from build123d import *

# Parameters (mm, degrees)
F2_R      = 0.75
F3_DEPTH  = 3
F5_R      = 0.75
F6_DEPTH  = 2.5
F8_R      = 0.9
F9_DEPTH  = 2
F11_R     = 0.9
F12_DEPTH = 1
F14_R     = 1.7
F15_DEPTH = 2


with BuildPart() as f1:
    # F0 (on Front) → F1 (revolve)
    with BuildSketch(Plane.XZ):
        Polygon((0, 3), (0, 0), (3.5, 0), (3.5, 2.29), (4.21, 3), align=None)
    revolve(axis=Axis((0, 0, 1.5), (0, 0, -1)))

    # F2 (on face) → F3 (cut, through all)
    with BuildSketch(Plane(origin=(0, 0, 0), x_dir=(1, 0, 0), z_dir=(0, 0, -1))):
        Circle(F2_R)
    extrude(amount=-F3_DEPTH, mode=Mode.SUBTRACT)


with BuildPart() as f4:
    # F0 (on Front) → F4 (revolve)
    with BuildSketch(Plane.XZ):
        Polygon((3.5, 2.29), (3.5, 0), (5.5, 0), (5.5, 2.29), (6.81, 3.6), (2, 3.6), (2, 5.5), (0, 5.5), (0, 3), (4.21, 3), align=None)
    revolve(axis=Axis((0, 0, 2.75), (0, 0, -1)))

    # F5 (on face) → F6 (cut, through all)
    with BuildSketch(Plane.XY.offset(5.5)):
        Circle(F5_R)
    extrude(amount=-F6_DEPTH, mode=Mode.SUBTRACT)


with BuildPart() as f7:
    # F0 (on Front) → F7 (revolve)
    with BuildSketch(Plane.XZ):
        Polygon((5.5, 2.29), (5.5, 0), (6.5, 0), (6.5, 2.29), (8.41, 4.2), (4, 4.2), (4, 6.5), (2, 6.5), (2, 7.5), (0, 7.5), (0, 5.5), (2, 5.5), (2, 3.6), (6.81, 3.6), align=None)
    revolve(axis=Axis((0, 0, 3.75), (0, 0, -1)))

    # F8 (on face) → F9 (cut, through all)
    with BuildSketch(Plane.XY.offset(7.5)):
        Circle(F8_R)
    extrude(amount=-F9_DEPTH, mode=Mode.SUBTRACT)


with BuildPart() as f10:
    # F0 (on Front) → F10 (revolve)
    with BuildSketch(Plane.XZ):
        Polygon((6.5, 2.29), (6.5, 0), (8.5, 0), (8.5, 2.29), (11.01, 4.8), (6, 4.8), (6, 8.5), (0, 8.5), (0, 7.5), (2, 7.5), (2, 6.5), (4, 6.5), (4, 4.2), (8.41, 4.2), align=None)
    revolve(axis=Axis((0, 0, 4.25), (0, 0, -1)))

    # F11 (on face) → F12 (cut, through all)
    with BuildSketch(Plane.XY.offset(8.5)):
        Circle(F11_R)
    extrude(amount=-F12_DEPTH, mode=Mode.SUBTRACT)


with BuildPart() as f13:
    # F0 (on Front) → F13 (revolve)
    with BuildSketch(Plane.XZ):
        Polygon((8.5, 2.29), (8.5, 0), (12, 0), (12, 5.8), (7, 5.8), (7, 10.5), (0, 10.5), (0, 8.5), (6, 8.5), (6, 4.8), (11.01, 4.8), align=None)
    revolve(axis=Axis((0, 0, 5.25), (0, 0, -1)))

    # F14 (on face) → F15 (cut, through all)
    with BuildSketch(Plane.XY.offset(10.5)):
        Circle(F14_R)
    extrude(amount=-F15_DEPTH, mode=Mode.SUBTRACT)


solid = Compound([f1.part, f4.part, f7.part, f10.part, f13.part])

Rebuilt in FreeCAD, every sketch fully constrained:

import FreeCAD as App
import Part
import Sketcher
Q = App.Units.Quantity

doc = App.newDocument("Part")
body = doc.addObject("PartDesign::Body", "Body")

# Sketch on XZ plane
sketch1 = doc.addObject("Sketcher::SketchObject", "Sketch")
body.addObject(sketch1)
sketch1.AttachmentSupport = (doc.XZ_Plane, [""])
sketch1.MapMode = "FlatFace"
sketch1.addGeometry(Part.LineSegment(App.Vector(0, 3, 0), App.Vector(0, 0, 0)), False)
sketch1.addGeometry(Part.LineSegment(App.Vector(0, 0, 0), App.Vector(3.5, 0, 0)), False)
sketch1.addGeometry(Part.LineSegment(App.Vector(3.5, 0, 0), App.Vector(3.5, 2.29, 0)), False)
sketch1.addGeometry(Part.LineSegment(App.Vector(3.5, 2.29, 0), App.Vector(4.21, 3, 0)), False)
sketch1.addGeometry(Part.LineSegment(App.Vector(4.21, 3, 0), App.Vector(0, 3, 0)), False)
sketch1.addConstraint(Sketcher.Constraint("Coincident", 0, 2, 1, 1))
sketch1.addConstraint(Sketcher.Constraint("Coincident", 1, 2, 2, 1))
sketch1.addConstraint(Sketcher.Constraint("Coincident", 2, 2, 3, 1))
sketch1.addConstraint(Sketcher.Constraint("Coincident", 3, 2, 4, 1))
sketch1.addConstraint(Sketcher.Constraint("Coincident", 4, 2, 0, 1))
sketch1.addConstraint(Sketcher.Constraint("Vertical", 0))
sketch1.addConstraint(Sketcher.Constraint("Horizontal", 1))
sketch1.addConstraint(Sketcher.Constraint("Vertical", 2))
sketch1.addConstraint(Sketcher.Constraint("Horizontal", 4))
sketch1.addConstraint(Sketcher.Constraint("Coincident", 0, 2, -1, 1))
sketch1.addConstraint(Sketcher.Constraint("DistanceY", 0, 2, 0, 1, Q("3 mm")))
sketch1.addConstraint(Sketcher.Constraint("Angle", 3, Q("45 deg")))
sketch1.addConstraint(Sketcher.Constraint("DistanceX", 1, 1, 1, 2, Q("3.5 mm")))
sketch1.addConstraint(Sketcher.Constraint("DistanceX", 4, 2, 4, 1, Q("4.21 mm")))
revolution = doc.addObject("PartDesign::Revolution", "Revolution")
body.addObject(revolution)
revolution.Profile = sketch1
revolution.ReferenceAxis = (sketch1, ["V_Axis"])
revolution.Angle = 360

# Sketch on XY plane
sketch2 = doc.addObject("Sketcher::SketchObject", "Sketch001")
body.addObject(sketch2)
sketch2.AttachmentSupport = (doc.XY_Plane, [""])
sketch2.MapMode = "FlatFace"
sketch2.addGeometry(Part.Circle(App.Vector(0, 0, 0), App.Vector(0, 0, 1), 0.75), False)
sketch2.addConstraint(Sketcher.Constraint("Coincident", 0, 3, -1, 1))
sketch2.addConstraint(Sketcher.Constraint("Diameter", 0, Q("1.5 mm")))
pocket1 = doc.addObject("PartDesign::Pocket", "Pocket")
body.addObject(pocket1)
pocket1.Profile = sketch2
pocket1.Type = "ThroughAll"
pocket1.Reversed = True
body2 = doc.addObject("PartDesign::Body", "Body001")

# Sketch on XZ plane
sketch3 = doc.addObject("Sketcher::SketchObject", "Sketch002")
body2.addObject(sketch3)
sketch3.AttachmentSupport = (doc.getObject("XZ_Plane001"), [""])
sketch3.MapMode = "FlatFace"
sketch3.addGeometry(Part.LineSegment(App.Vector(3.5, 2.29, 0), App.Vector(3.5, 0, 0)), False)
sketch3.addGeometry(Part.LineSegment(App.Vector(3.5, 0, 0), App.Vector(5.5, 0, 0)), False)
sketch3.addGeometry(Part.LineSegment(App.Vector(5.5, 0, 0), App.Vector(5.5, 2.29, 0)), False)
sketch3.addGeometry(Part.LineSegment(App.Vector(5.5, 2.29, 0), App.Vector(6.81, 3.6, 0)), False)
sketch3.addGeometry(Part.LineSegment(App.Vector(6.81, 3.6, 0), App.Vector(2, 3.6, 0)), False)
sketch3.addGeometry(Part.LineSegment(App.Vector(2, 3.6, 0), App.Vector(2, 5.5, 0)), False)
sketch3.addGeometry(Part.LineSegment(App.Vector(2, 5.5, 0), App.Vector(0, 5.5, 0)), False)
sketch3.addGeometry(Part.LineSegment(App.Vector(0, 5.5, 0), App.Vector(0, 3, 0)), False)
sketch3.addGeometry(Part.LineSegment(App.Vector(0, 3, 0), App.Vector(4.21, 3, 0)), False)
sketch3.addGeometry(Part.LineSegment(App.Vector(4.21, 3, 0), App.Vector(3.5, 2.29, 0)), False)
sketch3.addConstraint(Sketcher.Constraint("Coincident", 0, 2, 1, 1))
sketch3.addConstraint(Sketcher.Constraint("Coincident", 1, 2, 2, 1))
sketch3.addConstraint(Sketcher.Constraint("Coincident", 2, 2, 3, 1))
sketch3.addConstraint(Sketcher.Constraint("Coincident", 3, 2, 4, 1))
sketch3.addConstraint(Sketcher.Constraint("Coincident", 4, 2, 5, 1))
sketch3.addConstraint(Sketcher.Constraint("Coincident", 5, 2, 6, 1))
sketch3.addConstraint(Sketcher.Constraint("Coincident", 6, 2, 7, 1))
sketch3.addConstraint(Sketcher.Constraint("Coincident", 7, 2, 8, 1))
sketch3.addConstraint(Sketcher.Constraint("Coincident", 8, 2, 9, 1))
sketch3.addConstraint(Sketcher.Constraint("Coincident", 9, 2, 0, 1))
sketch3.addConstraint(Sketcher.Constraint("Vertical", 0))
sketch3.addConstraint(Sketcher.Constraint("Horizontal", 1))
sketch3.addConstraint(Sketcher.Constraint("Vertical", 2))
sketch3.addConstraint(Sketcher.Constraint("Horizontal", 4))
sketch3.addConstraint(Sketcher.Constraint("Vertical", 5))
sketch3.addConstraint(Sketcher.Constraint("Horizontal", 6))
sketch3.addConstraint(Sketcher.Constraint("Vertical", 7))
sketch3.addConstraint(Sketcher.Constraint("Horizontal", 8))
sketch3.addConstraint(Sketcher.Constraint("PointOnObject", 0, 2, -1))
sketch3.addConstraint(Sketcher.Constraint("PointOnObject", 6, 2, -2))
sketch3.addConstraint(Sketcher.Constraint("Parallel", 3, 9))
sketch3.addConstraint(Sketcher.Constraint("Horizontal", 2, 2, 9, 2))
sketch3.addConstraint(Sketcher.Constraint("Equal", 1, 6))
sketch3.addConstraint(Sketcher.Constraint("DistanceX", 1, 1, 1, 2, Q("2 mm")))
sketch3.addConstraint(Sketcher.Constraint("Angle", 3, Q("45 deg")))
sketch3.addConstraint(Sketcher.Constraint("DistanceY", 5, 1, 5, 2, Q("1.9 mm")))
sketch3.addConstraint(Sketcher.Constraint("DistanceY", 7, 2, 7, 1, Q("2.5 mm")))
sketch3.addConstraint(Sketcher.Constraint("DistanceY", -1, 1, 7, 2, Q("3 mm")))
sketch3.addConstraint(Sketcher.Constraint("DistanceX", 4, 2, 4, 1, Q("4.81 mm")))
sketch3.addConstraint(Sketcher.Constraint("DistanceY", 0, 2, 0, 1, Q("2.29 mm")))
revolution2 = doc.addObject("PartDesign::Revolution", "Revolution001")
body2.addObject(revolution2)
revolution2.Profile = sketch3
revolution2.ReferenceAxis = (sketch3, ["V_Axis"])
revolution2.Angle = 360

# Sketch on XY plane
sketch4 = doc.addObject("Sketcher::SketchObject", "Sketch003")
body2.addObject(sketch4)
sketch4.AttachmentSupport = (doc.getObject("XY_Plane001"), [""])
sketch4.MapMode = "FlatFace"
sketch4.AttachmentOffset = App.Placement(App.Vector(0, 0, 5.5), App.Rotation())
sketch4.addGeometry(Part.Circle(App.Vector(0, 0, 0), App.Vector(0, 0, 1), 0.75), False)
sketch4.addConstraint(Sketcher.Constraint("Coincident", 0, 3, -1, 1))
sketch4.addConstraint(Sketcher.Constraint("Diameter", 0, Q("1.5 mm")))
pocket2 = doc.addObject("PartDesign::Pocket", "Pocket001")
body2.addObject(pocket2)
pocket2.Profile = sketch4
pocket2.Type = "ThroughAll"
body3 = doc.addObject("PartDesign::Body", "Body002")

# Sketch on XZ plane
sketch5 = doc.addObject("Sketcher::SketchObject", "Sketch004")
body3.addObject(sketch5)
sketch5.AttachmentSupport = (doc.getObject("XZ_Plane002"), [""])
sketch5.MapMode = "FlatFace"
sketch5.addGeometry(Part.LineSegment(App.Vector(5.5, 2.29, 0), App.Vector(5.5, 0, 0)), False)
sketch5.addGeometry(Part.LineSegment(App.Vector(5.5, 0, 0), App.Vector(6.5, 0, 0)), False)
sketch5.addGeometry(Part.LineSegment(App.Vector(6.5, 0, 0), App.Vector(6.5, 2.29, 0)), False)
sketch5.addGeometry(Part.LineSegment(App.Vector(6.5, 2.29, 0), App.Vector(8.41, 4.2, 0)), False)
sketch5.addGeometry(Part.LineSegment(App.Vector(8.41, 4.2, 0), App.Vector(4, 4.2, 0)), False)
sketch5.addGeometry(Part.LineSegment(App.Vector(4, 4.2, 0), App.Vector(4, 6.5, 0)), False)
sketch5.addGeometry(Part.LineSegment(App.Vector(4, 6.5, 0), App.Vector(2, 6.5, 0)), False)
sketch5.addGeometry(Part.LineSegment(App.Vector(2, 6.5, 0), App.Vector(2, 7.5, 0)), False)
sketch5.addGeometry(Part.LineSegment(App.Vector(2, 7.5, 0), App.Vector(0, 7.5, 0)), False)
sketch5.addGeometry(Part.LineSegment(App.Vector(0, 7.5, 0), App.Vector(0, 5.5, 0)), False)
sketch5.addGeometry(Part.LineSegment(App.Vector(0, 5.5, 0), App.Vector(2, 5.5, 0)), False)
sketch5.addGeometry(Part.LineSegment(App.Vector(2, 5.5, 0), App.Vector(2, 3.6, 0)), False)
sketch5.addGeometry(Part.LineSegment(App.Vector(2, 3.6, 0), App.Vector(6.81, 3.6, 0)), False)
sketch5.addGeometry(Part.LineSegment(App.Vector(6.81, 3.6, 0), App.Vector(5.5, 2.29, 0)), False)
sketch5.addConstraint(Sketcher.Constraint("Coincident", 0, 2, 1, 1))
sketch5.addConstraint(Sketcher.Constraint("Coincident", 1, 2, 2, 1))
sketch5.addConstraint(Sketcher.Constraint("Coincident", 2, 2, 3, 1))
sketch5.addConstraint(Sketcher.Constraint("Coincident", 3, 2, 4, 1))
sketch5.addConstraint(Sketcher.Constraint("Coincident", 4, 2, 5, 1))
sketch5.addConstraint(Sketcher.Constraint("Coincident", 5, 2, 6, 1))
sketch5.addConstraint(Sketcher.Constraint("Coincident", 6, 2, 7, 1))
sketch5.addConstraint(Sketcher.Constraint("Coincident", 7, 2, 8, 1))
sketch5.addConstraint(Sketcher.Constraint("Coincident", 8, 2, 9, 1))
sketch5.addConstraint(Sketcher.Constraint("Coincident", 9, 2, 10, 1))
sketch5.addConstraint(Sketcher.Constraint("Coincident", 10, 2, 11, 1))
sketch5.addConstraint(Sketcher.Constraint("Coincident", 11, 2, 12, 1))
sketch5.addConstraint(Sketcher.Constraint("Coincident", 12, 2, 13, 1))
sketch5.addConstraint(Sketcher.Constraint("Coincident", 13, 2, 0, 1))
sketch5.addConstraint(Sketcher.Constraint("Vertical", 0))
sketch5.addConstraint(Sketcher.Constraint("Horizontal", 1))
sketch5.addConstraint(Sketcher.Constraint("Vertical", 2))
sketch5.addConstraint(Sketcher.Constraint("Horizontal", 4))
sketch5.addConstraint(Sketcher.Constraint("Vertical", 5))
sketch5.addConstraint(Sketcher.Constraint("Horizontal", 6))
sketch5.addConstraint(Sketcher.Constraint("Vertical", 7))
sketch5.addConstraint(Sketcher.Constraint("Horizontal", 8))
sketch5.addConstraint(Sketcher.Constraint("Vertical", 9))
sketch5.addConstraint(Sketcher.Constraint("Horizontal", 10))
sketch5.addConstraint(Sketcher.Constraint("Vertical", 11))
sketch5.addConstraint(Sketcher.Constraint("Horizontal", 12))
sketch5.addConstraint(Sketcher.Constraint("PointOnObject", 0, 2, -1))
sketch5.addConstraint(Sketcher.Constraint("PointOnObject", 8, 2, -2))
sketch5.addConstraint(Sketcher.Constraint("Parallel", 3, 13))
sketch5.addConstraint(Sketcher.Constraint("Horizontal", 2, 2, 13, 2))
sketch5.addConstraint(Sketcher.Constraint("Vertical", 7, 2, 10, 2))
sketch5.addConstraint(Sketcher.Constraint("Equal", 6, 8))
sketch5.addConstraint(Sketcher.Constraint("Equal", 1, 7))
sketch5.addConstraint(Sketcher.Constraint("Equal", 10, 9))
sketch5.addConstraint(Sketcher.Constraint("DistanceX", 1, 1, 1, 2, Q("1 mm")))
sketch5.addConstraint(Sketcher.Constraint("DistanceX", 6, 2, 6, 1, Q("2 mm")))
sketch5.addConstraint(Sketcher.Constraint("Angle", 3, Q("45 deg")))
sketch5.addConstraint(Sketcher.Constraint("DistanceY", 5, 1, 5, 2, Q("2.3 mm")))
sketch5.addConstraint(Sketcher.Constraint("DistanceY", 11, 2, 11, 1, Q("1.9 mm")))
sketch5.addConstraint(Sketcher.Constraint("DistanceX", 4, 2, 4, 1, Q("4.41 mm")))
sketch5.addConstraint(Sketcher.Constraint("DistanceY", 0, 2, 0, 1, Q("2.29 mm")))
sketch5.addConstraint(Sketcher.Constraint("DistanceX", -1, 1, 0, 2, Q("5.5 mm")))
revolution3 = doc.addObject("PartDesign::Revolution", "Revolution002")
body3.addObject(revolution3)
revolution3.Profile = sketch5
revolution3.ReferenceAxis = (sketch5, ["V_Axis"])
revolution3.Angle = 360

# Sketch on XY plane
sketch6 = doc.addObject("Sketcher::SketchObject", "Sketch005")
body3.addObject(sketch6)
sketch6.AttachmentSupport = (doc.getObject("XY_Plane002"), [""])
sketch6.MapMode = "FlatFace"
sketch6.AttachmentOffset = App.Placement(App.Vector(0, 0, 7.5), App.Rotation())
sketch6.addGeometry(Part.Circle(App.Vector(0, 0, 0), App.Vector(0, 0, 1), 0.9), False)
sketch6.addConstraint(Sketcher.Constraint("Coincident", 0, 3, -1, 1))
sketch6.addConstraint(Sketcher.Constraint("Diameter", 0, Q("1.8 mm")))
pocket3 = doc.addObject("PartDesign::Pocket", "Pocket002")
body3.addObject(pocket3)
pocket3.Profile = sketch6
pocket3.Type = "ThroughAll"
body4 = doc.addObject("PartDesign::Body", "Body003")

# Sketch on XZ plane
sketch7 = doc.addObject("Sketcher::SketchObject", "Sketch006")
body4.addObject(sketch7)
sketch7.AttachmentSupport = (doc.getObject("XZ_Plane003"), [""])
sketch7.MapMode = "FlatFace"
sketch7.addGeometry(Part.LineSegment(App.Vector(6.5, 2.29, 0), App.Vector(6.5, 0, 0)), False)
sketch7.addGeometry(Part.LineSegment(App.Vector(6.5, 0, 0), App.Vector(8.5, 0, 0)), False)
sketch7.addGeometry(Part.LineSegment(App.Vector(8.5, 0, 0), App.Vector(8.5, 2.29, 0)), False)
sketch7.addGeometry(Part.LineSegment(App.Vector(8.5, 2.29, 0), App.Vector(11.01, 4.8, 0)), False)
sketch7.addGeometry(Part.LineSegment(App.Vector(11.01, 4.8, 0), App.Vector(6, 4.8, 0)), False)
sketch7.addGeometry(Part.LineSegment(App.Vector(6, 4.8, 0), App.Vector(6, 8.5, 0)), False)
sketch7.addGeometry(Part.LineSegment(App.Vector(6, 8.5, 0), App.Vector(0, 8.5, 0)), False)
sketch7.addGeometry(Part.LineSegment(App.Vector(0, 8.5, 0), App.Vector(0, 7.5, 0)), False)
sketch7.addGeometry(Part.LineSegment(App.Vector(0, 7.5, 0), App.Vector(2, 7.5, 0)), False)
sketch7.addGeometry(Part.LineSegment(App.Vector(2, 7.5, 0), App.Vector(2, 6.5, 0)), False)
sketch7.addGeometry(Part.LineSegment(App.Vector(2, 6.5, 0), App.Vector(4, 6.5, 0)), False)
sketch7.addGeometry(Part.LineSegment(App.Vector(4, 6.5, 0), App.Vector(4, 4.2, 0)), False)
sketch7.addGeometry(Part.LineSegment(App.Vector(4, 4.2, 0), App.Vector(8.41, 4.2, 0)), False)
sketch7.addGeometry(Part.LineSegment(App.Vector(8.41, 4.2, 0), App.Vector(6.5, 2.29, 0)), False)
sketch7.addConstraint(Sketcher.Constraint("Coincident", 0, 2, 1, 1))
sketch7.addConstraint(Sketcher.Constraint("Coincident", 1, 2, 2, 1))
sketch7.addConstraint(Sketcher.Constraint("Coincident", 2, 2, 3, 1))
sketch7.addConstraint(Sketcher.Constraint("Coincident", 3, 2, 4, 1))
sketch7.addConstraint(Sketcher.Constraint("Coincident", 4, 2, 5, 1))
sketch7.addConstraint(Sketcher.Constraint("Coincident", 5, 2, 6, 1))
sketch7.addConstraint(Sketcher.Constraint("Coincident", 6, 2, 7, 1))
sketch7.addConstraint(Sketcher.Constraint("Coincident", 7, 2, 8, 1))
sketch7.addConstraint(Sketcher.Constraint("Coincident", 8, 2, 9, 1))
sketch7.addConstraint(Sketcher.Constraint("Coincident", 9, 2, 10, 1))
sketch7.addConstraint(Sketcher.Constraint("Coincident", 10, 2, 11, 1))
sketch7.addConstraint(Sketcher.Constraint("Coincident", 11, 2, 12, 1))
sketch7.addConstraint(Sketcher.Constraint("Coincident", 12, 2, 13, 1))
sketch7.addConstraint(Sketcher.Constraint("Coincident", 13, 2, 0, 1))
sketch7.addConstraint(Sketcher.Constraint("Vertical", 0))
sketch7.addConstraint(Sketcher.Constraint("Horizontal", 1))
sketch7.addConstraint(Sketcher.Constraint("Vertical", 2))
sketch7.addConstraint(Sketcher.Constraint("Horizontal", 4))
sketch7.addConstraint(Sketcher.Constraint("Vertical", 5))
sketch7.addConstraint(Sketcher.Constraint("Horizontal", 6))
sketch7.addConstraint(Sketcher.Constraint("Vertical", 7))
sketch7.addConstraint(Sketcher.Constraint("Horizontal", 8))
sketch7.addConstraint(Sketcher.Constraint("Vertical", 9))
sketch7.addConstraint(Sketcher.Constraint("Horizontal", 10))
sketch7.addConstraint(Sketcher.Constraint("Vertical", 11))
sketch7.addConstraint(Sketcher.Constraint("Horizontal", 12))
sketch7.addConstraint(Sketcher.Constraint("PointOnObject", 0, 2, -1))
sketch7.addConstraint(Sketcher.Constraint("PointOnObject", 6, 2, -2))
sketch7.addConstraint(Sketcher.Constraint("Parallel", 3, 13))
sketch7.addConstraint(Sketcher.Constraint("Horizontal", 2, 2, 13, 2))
sketch7.addConstraint(Sketcher.Constraint("Equal", 1, 8))
sketch7.addConstraint(Sketcher.Constraint("Equal", 8, 10))
sketch7.addConstraint(Sketcher.Constraint("Equal", 7, 9))
sketch7.addConstraint(Sketcher.Constraint("DistanceX", 1, 1, 1, 2, Q("2 mm")))
sketch7.addConstraint(Sketcher.Constraint("DistanceX", 6, 2, 6, 1, Q("6 mm")))
sketch7.addConstraint(Sketcher.Constraint("DistanceY", 7, 2, 7, 1, Q("1 mm")))
sketch7.addConstraint(Sketcher.Constraint("Angle", 3, Q("45 deg")))
sketch7.addConstraint(Sketcher.Constraint("DistanceY", 5, 1, 5, 2, Q("3.7 mm")))
sketch7.addConstraint(Sketcher.Constraint("DistanceY", 11, 2, 11, 1, Q("2.3 mm")))
sketch7.addConstraint(Sketcher.Constraint("DistanceX", 4, 2, 4, 1, Q("5.01 mm")))
sketch7.addConstraint(Sketcher.Constraint("DistanceY", 0, 2, 0, 1, Q("2.29 mm")))
sketch7.addConstraint(Sketcher.Constraint("DistanceX", -1, 1, 0, 2, Q("6.5 mm")))
revolution4 = doc.addObject("PartDesign::Revolution", "Revolution003")
body4.addObject(revolution4)
revolution4.Profile = sketch7
revolution4.ReferenceAxis = (sketch7, ["V_Axis"])
revolution4.Angle = 360

# Sketch on XY plane
sketch8 = doc.addObject("Sketcher::SketchObject", "Sketch007")
body4.addObject(sketch8)
sketch8.AttachmentSupport = (doc.getObject("XY_Plane003"), [""])
sketch8.MapMode = "FlatFace"
sketch8.AttachmentOffset = App.Placement(App.Vector(0, 0, 8.5), App.Rotation())
sketch8.addGeometry(Part.Circle(App.Vector(0, 0, 0), App.Vector(0, 0, 1), 0.9), False)
sketch8.addConstraint(Sketcher.Constraint("Coincident", 0, 3, -1, 1))
sketch8.addConstraint(Sketcher.Constraint("Diameter", 0, Q("1.8 mm")))
pocket4 = doc.addObject("PartDesign::Pocket", "Pocket003")
body4.addObject(pocket4)
pocket4.Profile = sketch8
pocket4.Type = "ThroughAll"
body5 = doc.addObject("PartDesign::Body", "Body004")

# Sketch on XZ plane
sketch9 = doc.addObject("Sketcher::SketchObject", "Sketch008")
body5.addObject(sketch9)
sketch9.AttachmentSupport = (doc.getObject("XZ_Plane004"), [""])
sketch9.MapMode = "FlatFace"
sketch9.addGeometry(Part.LineSegment(App.Vector(8.5, 2.29, 0), App.Vector(8.5, 0, 0)), False)
sketch9.addGeometry(Part.LineSegment(App.Vector(8.5, 0, 0), App.Vector(12, 0, 0)), False)
sketch9.addGeometry(Part.LineSegment(App.Vector(12, 0, 0), App.Vector(12, 5.8, 0)), False)
sketch9.addGeometry(Part.LineSegment(App.Vector(12, 5.8, 0), App.Vector(7, 5.8, 0)), False)
sketch9.addGeometry(Part.LineSegment(App.Vector(7, 5.8, 0), App.Vector(7, 10.5, 0)), False)
sketch9.addGeometry(Part.LineSegment(App.Vector(7, 10.5, 0), App.Vector(0, 10.5, 0)), False)
sketch9.addGeometry(Part.LineSegment(App.Vector(0, 10.5, 0), App.Vector(0, 8.5, 0)), False)
sketch9.addGeometry(Part.LineSegment(App.Vector(0, 8.5, 0), App.Vector(6, 8.5, 0)), False)
sketch9.addGeometry(Part.LineSegment(App.Vector(6, 8.5, 0), App.Vector(6, 4.8, 0)), False)
sketch9.addGeometry(Part.LineSegment(App.Vector(6, 4.8, 0), App.Vector(11.01, 4.8, 0)), False)
sketch9.addGeometry(Part.LineSegment(App.Vector(11.01, 4.8, 0), App.Vector(8.5, 2.29, 0)), False)
sketch9.addConstraint(Sketcher.Constraint("Coincident", 0, 2, 1, 1))
sketch9.addConstraint(Sketcher.Constraint("Coincident", 1, 2, 2, 1))
sketch9.addConstraint(Sketcher.Constraint("Coincident", 2, 2, 3, 1))
sketch9.addConstraint(Sketcher.Constraint("Coincident", 3, 2, 4, 1))
sketch9.addConstraint(Sketcher.Constraint("Coincident", 4, 2, 5, 1))
sketch9.addConstraint(Sketcher.Constraint("Coincident", 5, 2, 6, 1))
sketch9.addConstraint(Sketcher.Constraint("Coincident", 6, 2, 7, 1))
sketch9.addConstraint(Sketcher.Constraint("Coincident", 7, 2, 8, 1))
sketch9.addConstraint(Sketcher.Constraint("Coincident", 8, 2, 9, 1))
sketch9.addConstraint(Sketcher.Constraint("Coincident", 9, 2, 10, 1))
sketch9.addConstraint(Sketcher.Constraint("Coincident", 10, 2, 0, 1))
sketch9.addConstraint(Sketcher.Constraint("Vertical", 0))
sketch9.addConstraint(Sketcher.Constraint("Horizontal", 1))
sketch9.addConstraint(Sketcher.Constraint("Vertical", 2))
sketch9.addConstraint(Sketcher.Constraint("Horizontal", 3))
sketch9.addConstraint(Sketcher.Constraint("Vertical", 4))
sketch9.addConstraint(Sketcher.Constraint("Horizontal", 5))
sketch9.addConstraint(Sketcher.Constraint("Vertical", 6))
sketch9.addConstraint(Sketcher.Constraint("Horizontal", 7))
sketch9.addConstraint(Sketcher.Constraint("Vertical", 8))
sketch9.addConstraint(Sketcher.Constraint("Horizontal", 9))
sketch9.addConstraint(Sketcher.Constraint("PointOnObject", 0, 2, -1))
sketch9.addConstraint(Sketcher.Constraint("PointOnObject", 5, 2, -2))
sketch9.addConstraint(Sketcher.Constraint("DistanceX", 3, 2, 3, 1, Q("5 mm")))
sketch9.addConstraint(Sketcher.Constraint("DistanceX", 5, 2, 5, 1, Q("7 mm")))
sketch9.addConstraint(Sketcher.Constraint("DistanceX", 7, 1, 7, 2, Q("6 mm")))
sketch9.addConstraint(Sketcher.Constraint("DistanceY", 6, 2, 6, 1, Q("2 mm")))
sketch9.addConstraint(Sketcher.Constraint("Angle", 10, Q("-135 deg")))
sketch9.addConstraint(Sketcher.Constraint("DistanceX", 1, 1, 1, 2, Q("3.5 mm")))
sketch9.addConstraint(Sketcher.Constraint("DistanceY", 2, 1, 2, 2, Q("5.8 mm")))
sketch9.addConstraint(Sketcher.Constraint("DistanceY", 4, 1, 4, 2, Q("4.7 mm")))
sketch9.addConstraint(Sketcher.Constraint("DistanceY", 8, 2, 8, 1, Q("3.7 mm")))
sketch9.addConstraint(Sketcher.Constraint("DistanceX", 9, 1, 9, 2, Q("5.01 mm")))
revolution5 = doc.addObject("PartDesign::Revolution", "Revolution004")
body5.addObject(revolution5)
revolution5.Profile = sketch9
revolution5.ReferenceAxis = (sketch9, ["V_Axis"])
revolution5.Angle = 360

# Sketch on XY plane
sketch10 = doc.addObject("Sketcher::SketchObject", "Sketch009")
body5.addObject(sketch10)
sketch10.AttachmentSupport = (doc.getObject("XY_Plane004"), [""])
sketch10.MapMode = "FlatFace"
sketch10.AttachmentOffset = App.Placement(App.Vector(0, 0, 10.5), App.Rotation())
sketch10.addGeometry(Part.Circle(App.Vector(0, 0, 0), App.Vector(0, 0, 1), 1.7), False)
sketch10.addConstraint(Sketcher.Constraint("Coincident", 0, 3, -1, 1))
sketch10.addConstraint(Sketcher.Constraint("Diameter", 0, Q("3.4 mm")))
pocket5 = doc.addObject("PartDesign::Pocket", "Pocket004")
body5.addObject(pocket5)
pocket5.Profile = sketch10
pocket5.Type = "ThroughAll"

doc.recompute()
